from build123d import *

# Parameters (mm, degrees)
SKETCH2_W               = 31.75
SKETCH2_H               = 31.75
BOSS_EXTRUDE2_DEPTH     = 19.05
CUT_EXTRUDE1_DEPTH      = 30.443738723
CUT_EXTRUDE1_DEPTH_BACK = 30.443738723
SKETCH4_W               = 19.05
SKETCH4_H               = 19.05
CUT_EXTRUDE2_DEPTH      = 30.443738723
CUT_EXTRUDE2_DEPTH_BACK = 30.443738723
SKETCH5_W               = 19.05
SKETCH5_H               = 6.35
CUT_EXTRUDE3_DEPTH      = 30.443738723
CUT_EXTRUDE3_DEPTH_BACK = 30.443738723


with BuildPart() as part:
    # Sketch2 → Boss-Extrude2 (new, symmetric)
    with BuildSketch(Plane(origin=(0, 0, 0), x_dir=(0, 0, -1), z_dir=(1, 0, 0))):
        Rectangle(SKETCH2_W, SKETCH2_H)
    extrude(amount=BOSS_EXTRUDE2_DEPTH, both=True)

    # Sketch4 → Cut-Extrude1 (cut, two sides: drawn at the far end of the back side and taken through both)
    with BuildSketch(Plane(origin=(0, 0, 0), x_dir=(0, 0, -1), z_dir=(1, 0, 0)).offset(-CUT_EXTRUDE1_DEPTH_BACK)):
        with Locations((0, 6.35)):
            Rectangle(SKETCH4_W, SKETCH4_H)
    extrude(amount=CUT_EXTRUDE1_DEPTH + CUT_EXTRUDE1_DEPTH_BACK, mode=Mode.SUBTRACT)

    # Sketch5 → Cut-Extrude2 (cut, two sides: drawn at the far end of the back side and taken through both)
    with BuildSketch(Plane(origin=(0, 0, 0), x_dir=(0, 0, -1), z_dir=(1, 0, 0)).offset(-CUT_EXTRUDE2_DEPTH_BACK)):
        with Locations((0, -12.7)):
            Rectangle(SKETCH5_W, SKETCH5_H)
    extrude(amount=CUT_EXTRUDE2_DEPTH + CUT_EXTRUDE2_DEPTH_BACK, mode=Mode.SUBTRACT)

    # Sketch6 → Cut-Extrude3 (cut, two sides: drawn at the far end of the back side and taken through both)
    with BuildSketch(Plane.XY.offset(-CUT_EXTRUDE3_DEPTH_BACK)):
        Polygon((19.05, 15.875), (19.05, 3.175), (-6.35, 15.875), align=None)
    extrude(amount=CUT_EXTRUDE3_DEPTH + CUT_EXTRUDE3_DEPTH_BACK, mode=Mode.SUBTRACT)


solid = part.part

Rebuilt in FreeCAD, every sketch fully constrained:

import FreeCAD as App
import Part
import Sketcher
from FreeCAD import Vector
Q = App.Units.Quantity


def add_polygon(sketch, points):
    """Adds a closed chain of lines whose ends are joined by coincident constraints."""
    first, n = sketch.GeometryCount, len(points)
    for a, b in zip(points, points[1:] + points[:1]):
        sketch.addGeometry(Part.LineSegment(App.Vector(*a, 0), App.Vector(*b, 0)), False)
    for i in range(n):
        sketch.addConstraint(Sketcher.Constraint("Coincident", first + i, 2, first + (i + 1) % n, 1))

doc = App.newDocument("Part")
body = doc.addObject("PartDesign::Body", "Body")

sketch1 = body.newObject("Sketcher::SketchObject", "Sketch")
sketch1.AttachmentSupport = (doc.getObject("YZ_Plane"), [""])
sketch1.MapMode = "FlatFace"
add_polygon(sketch1, [(16, 16), (-16, 16), (-16, -16), (16, -16)])
sketch1.addConstraint(Sketcher.Constraint("Horizontal", 0))
sketch1.addConstraint(Sketcher.Constraint("Vertical", 1))
sketch1.addConstraint(Sketcher.Constraint("Horizontal", 2))
sketch1.addConstraint(Sketcher.Constraint("Vertical", 3))
sketch1.addConstraint(Sketcher.Constraint("Symmetric", 0, 2, 2, 2, -1, 1))
sketch1.addConstraint(Sketcher.Constraint("Equal", 2, 1))
sketch1.addConstraint(Sketcher.Constraint("DistanceX", 0, 2, 0, 1, Q("1.25 in")))
pad1 = body.newObject("PartDesign::Pad", "Pad")
pad1.Profile = sketch1
pad1.Length = Q("1.5 in")
pad1.Midplane = True

sketch2 = body.newObject("Sketcher::SketchObject", "Sketch001")
sketch2.AttachmentSupport = (doc.getObject("YZ_Plane"), [""])
sketch2.MapMode = "FlatFace"
add_polygon(sketch2, [(16, 10), (-3, 10), (-3, -10), (16, -10)])
sketch2.addConstraint(Sketcher.Constraint("Horizontal", 0))
sketch2.addConstraint(Sketcher.Constraint("Vertical", 1))
sketch2.addConstraint(Sketcher.Constraint("Horizontal", 2))
sketch2.addConstraint(Sketcher.Constraint("Vertical", 3))
sketch2.addConstraint(Sketcher.Constraint("Equal", 2, 1))
sketch2.addConstraint(Sketcher.Constraint("DistanceX", 0, 2, 0, 1, Q("0.75 in")))
sketch2.addConstraint(Sketcher.Constraint("DistanceX", 0, 2, -1, 1, Q("0.125 in")))
sketch2.addConstraint(Sketcher.Constraint("DistanceY", -1, 1, 0, 2, Q("0.375 in")))
pocket1 = body.newObject("PartDesign::Pocket", "Pocket")
pocket1.Profile = sketch2
pocket1.Type = "ThroughAll"
pocket1.Midplane = True

sketch3 = body.newObject("Sketcher::SketchObject", "Sketch002")
sketch3.AttachmentSupport = (doc.getObject("YZ_Plane"), [""])
sketch3.MapMode = "FlatFace"
add_polygon(sketch3, [(-10, 10), (-16, 10), (-16, -10), (-10, -10)])
sketch3.addConstraint(Sketcher.Constraint("Horizontal", 0))
sketch3.addConstraint(Sketcher.Constraint("Vertical", 1))
sketch3.addConstraint(Sketcher.Constraint("Horizontal", 2))
sketch3.addConstraint(Sketcher.Constraint("Vertical", 3))
sketch3.addConstraint(Sketcher.Constraint("DistanceX", 0, 2, 0, 1, Q("0.25 in")))
sketch3.addConstraint(Sketcher.Constraint("DistanceY", 1, 2, 1, 1, Q("0.75 in")))
sketch3.addConstraint(Sketcher.Constraint("DistanceX", 0, 2, -1, 1, Q("0.625 in")))
sketch3.addConstraint(Sketcher.Constraint("DistanceY", -1, 1, 0, 2, Q("0.375 in")))
pocket2 = body.newObject("PartDesign::Pocket", "Pocket001")
pocket2.Profile = sketch3
pocket2.Type = "ThroughAll"
pocket2.Midplane = True

sketch4 = body.newObject("Sketcher::SketchObject", "Sketch003")
sketch4.AttachmentSupport = (doc.getObject("XY_Plane"), [""])
sketch4.MapMode = "FlatFace"
add_polygon(sketch4, [(19, 3), (19, 16), (-6, 16)])
sketch4.addConstraint(Sketcher.Constraint("Vertical", 0))
sketch4.addConstraint(Sketcher.Constraint("Horizontal", 1))
sketch4.addConstraint(Sketcher.Constraint("DistanceX", 1, 2, 1, 1, Q("1 in")))
sketch4.addConstraint(Sketcher.Constraint("DistanceY", 0, 1, 0, 2, Q("0.5 in")))
sketch4.addConstraint(Sketcher.Constraint("DistanceX", -1, 1, 0, 2, Q("0.75 in")))
sketch4.addConstraint(Sketcher.Constraint("DistanceY", -1, 1, 0, 2, Q("0.625 in")))
pocket3 = body.newObject("PartDesign::Pocket", "Pocket002")
pocket3.Profile = sketch4
pocket3.Type = "ThroughAll"
pocket3.Midplane = True

doc.recompute()
